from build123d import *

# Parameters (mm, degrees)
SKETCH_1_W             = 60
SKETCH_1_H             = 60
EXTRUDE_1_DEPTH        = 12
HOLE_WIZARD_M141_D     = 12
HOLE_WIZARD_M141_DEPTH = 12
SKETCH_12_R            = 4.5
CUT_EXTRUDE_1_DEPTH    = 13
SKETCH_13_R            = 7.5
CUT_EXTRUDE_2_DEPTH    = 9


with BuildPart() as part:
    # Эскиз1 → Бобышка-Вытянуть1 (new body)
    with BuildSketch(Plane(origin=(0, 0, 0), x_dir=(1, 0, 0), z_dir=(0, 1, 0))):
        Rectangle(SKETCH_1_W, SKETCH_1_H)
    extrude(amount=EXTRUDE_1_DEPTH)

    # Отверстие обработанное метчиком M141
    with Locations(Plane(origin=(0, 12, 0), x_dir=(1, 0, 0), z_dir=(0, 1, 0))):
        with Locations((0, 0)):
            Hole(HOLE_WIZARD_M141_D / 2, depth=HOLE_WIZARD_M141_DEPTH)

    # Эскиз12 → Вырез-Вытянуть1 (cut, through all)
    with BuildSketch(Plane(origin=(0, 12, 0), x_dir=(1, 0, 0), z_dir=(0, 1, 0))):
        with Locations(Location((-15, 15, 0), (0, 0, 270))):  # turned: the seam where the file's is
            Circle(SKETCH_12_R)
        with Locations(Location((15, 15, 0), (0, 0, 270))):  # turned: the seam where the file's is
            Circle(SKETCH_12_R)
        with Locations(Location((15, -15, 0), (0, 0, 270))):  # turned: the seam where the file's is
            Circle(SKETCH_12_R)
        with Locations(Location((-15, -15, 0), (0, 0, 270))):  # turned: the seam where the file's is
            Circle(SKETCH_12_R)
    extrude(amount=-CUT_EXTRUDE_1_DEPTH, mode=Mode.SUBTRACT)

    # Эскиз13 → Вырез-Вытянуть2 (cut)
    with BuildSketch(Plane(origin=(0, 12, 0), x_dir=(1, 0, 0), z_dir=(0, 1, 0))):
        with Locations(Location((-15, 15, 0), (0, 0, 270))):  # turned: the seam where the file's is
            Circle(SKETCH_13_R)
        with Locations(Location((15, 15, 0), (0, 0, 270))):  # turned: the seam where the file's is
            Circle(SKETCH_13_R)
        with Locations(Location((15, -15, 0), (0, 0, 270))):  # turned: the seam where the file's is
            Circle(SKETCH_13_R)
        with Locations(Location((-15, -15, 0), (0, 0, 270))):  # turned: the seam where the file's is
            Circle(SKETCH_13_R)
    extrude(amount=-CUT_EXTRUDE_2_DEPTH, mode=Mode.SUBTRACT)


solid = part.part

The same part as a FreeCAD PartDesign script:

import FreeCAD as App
import Part
import Sketcher
from FreeCAD import Vector


def add_polygon(sketch, points):
    """Adds a closed chain of lines whose ends are joined by coincident constraints."""
    first, n = sketch.GeometryCount, len(points)
    for a, b in zip(points, points[1:] + points[:1]):
        sketch.addGeometry(Part.LineSegment(App.Vector(*a, 0), App.Vector(*b, 0)), False)
    for i in range(n):
        sketch.addConstraint(Sketcher.Constraint("Coincident", first + i, 2, first + (i + 1) % n, 1))

doc = App.newDocument("Part")
params = doc.addObject("Spreadsheet::Sheet", "Params")
for row, (alias, value) in enumerate([
    ("sketch1_width", "60 mm"),
    ("pad1_length", "12 mm"),
    ("sketch2_diameter", "12 mm"),
    ("hole_diameter", "12 mm"),
    ("hole_depth", "12 mm"),
    ("sketch3_diameter", "9 mm"),
    ("sketch4_diameter", "15 mm"),
    ("pocket2_length", "9 mm"),
], start=1):
    params.set(f"A{row}", alias)
    params.set(f"B{row}", "=" + value)
    params.setAlias(f"B{row}", alias)

body = doc.addObject("PartDesign::Body", "Body")

# Sketch on XZ plane
sketch1 = doc.addObject("Sketcher::SketchObject", "Sketch")
body.addObject(sketch1)
sketch1.AttachmentSupport = (doc.XZ_Plane, [""])
sketch1.MapMode = "FlatFace"
add_polygon(sketch1, [(-30, -30), (-30, 30), (30, 30), (30, -30)])  # lines 0-3
sketch1.addConstraint(Sketcher.Constraint("Vertical", 0))
sketch1.addConstraint(Sketcher.Constraint("Horizontal", 1))
sketch1.addConstraint(Sketcher.Constraint("Vertical", 2))
sketch1.addConstraint(Sketcher.Constraint("Horizontal", 3))
sketch1.addConstraint(Sketcher.Constraint("Symmetric", 0, 2, 2, 2, -1, 1))
sketch1.addConstraint(Sketcher.Constraint("Equal", 3, 0))
sketch1.addConstraint(Sketcher.Constraint("DistanceX", 1, 1, 1, 2, 60.0))
sketch1.setExpression("Constraints[10]", "Params.sketch1_width")
pad1 = doc.addObject("PartDesign::Pad", "Pad")
body.addObject(pad1)
pad1.Profile = sketch1
pad1.setExpression("Length", "Params.pad1_length")
pad1.Reversed = True

# Sketch on XZ plane
sketch2 = doc.addObject("Sketcher::SketchObject", "Sketch001")
body.addObject(sketch2)
sketch2.AttachmentSupport = (doc.XZ_Plane, [""])
sketch2.MapMode = "FlatFace"
sketch2.AttachmentOffset = App.Placement(Vector(0, 0, -12), App.Rotation())
sketch2.addGeometry(Part.Circle(Vector(0, 0, 0), Vector(0, 0, 1), 6), False)
sketch2.addConstraint(Sketcher.Constraint("Coincident", 0, 3, -1, 1))
sketch2.addConstraint(Sketcher.Constraint("Diameter", 0, 12.0))
sketch2.setExpression("Constraints[1]", "Params.sketch2_diameter")
doc.recompute()
hole = doc.addObject("PartDesign::Hole", "Hole")
body.addObject(hole)
hole.Profile = sketch2
hole.ThreadType = "None"
hole.setExpression("Diameter", "Params.hole_diameter")
hole.DepthType = "Dimension"
hole.setExpression("Depth", "Params.hole_depth")
hole.DrillPoint = "Flat"
hole.Reversed = True

# Sketch on XZ plane
sketch3 = doc.addObject("Sketcher::SketchObject", "Sketch002")
body.addObject(sketch3)
sketch3.AttachmentSupport = (doc.XZ_Plane, [""])
sketch3.MapMode = "FlatFace"
sketch3.AttachmentOffset = App.Placement(Vector(0, 0, -12), App.Rotation())
sketch3.addGeometry(Part.Circle(Vector(-15, -15, 0), Vector(0, 0, 1), 4.5), False)
sketch3.addGeometry(Part.Circle(Vector(15, -15, 0), Vector(0, 0, 1), 4.5), False)
sketch3.addGeometry(Part.Circle(Vector(15, 15, 0), Vector(0, 0, 1), 4.5), False)
sketch3.addGeometry(Part.Circle(Vector(-15, 15, 0), Vector(0, 0, 1), 4.5), False)
sketch3.addConstraint(Sketcher.Constraint("Equal", 0, 1))
sketch3.addConstraint(Sketcher.Constraint("Equal", 1, 2))
sketch3.addConstraint(Sketcher.Constraint("Equal", 2, 3))
sketch3.addConstraint(Sketcher.Constraint("Symmetric", 0, 3, 2, 3, -1, 1))
sketch3.addConstraint(Sketcher.Constraint("Symmetric", 1, 3, 3, 3, -1, 1))
sketch3.addConstraint(Sketcher.Constraint("Symmetric", 0, 3, 1, 3, -2))
sketch3.addConstraint(Sketcher.Constraint("Diameter", 0, 9.0))
sketch3.addConstraint(Sketcher.Constraint("DistanceX", 0, 3, -1, 1, 15.0))
sketch3.addConstraint(Sketcher.Constraint("DistanceY", 0, 3, -1, 1, 15.0))
sketch3.setExpression("Constraints[6]", "Params.sketch3_diameter")
pocket1 = doc.addObject("PartDesign::Pocket", "Pocket")
body.addObject(pocket1)
pocket1.Profile = sketch3
pocket1.Type = "ThroughAll"
pocket1.Reversed = True

# Sketch on XZ plane
sketch4 = doc.addObject("Sketcher::SketchObject", "Sketch003")
body.addObject(sketch4)
sketch4.AttachmentSupport = (doc.XZ_Plane, [""])
sketch4.MapMode = "FlatFace"
sketch4.AttachmentOffset = App.Placement(Vector(0, 0, -12), App.Rotation())
sketch4.addGeometry(Part.Circle(Vector(-15, -15, 0), Vector(0, 0, 1), 7.5), False)
sketch4.addGeometry(Part.Circle(Vector(15, -15, 0), Vector(0, 0, 1), 7.5), False)
sketch4.addGeometry(Part.Circle(Vector(15, 15, 0), Vector(0, 0, 1), 7.5), False)
sketch4.addGeometry(Part.Circle(Vector(-15, 15, 0), Vector(0, 0, 1), 7.5), False)
sketch4.addConstraint(Sketcher.Constraint("Equal", 0, 1))
sketch4.addConstraint(Sketcher.Constraint("Equal", 1, 2))
sketch4.addConstraint(Sketcher.Constraint("Equal", 2, 3))
sketch4.addConstraint(Sketcher.Constraint("Symmetric", 0, 3, 2, 3, -1, 1))
sketch4.addConstraint(Sketcher.Constraint("Symmetric", 1, 3, 3, 3, -1, 1))
sketch4.addConstraint(Sketcher.Constraint("Symmetric", 0, 3, 1, 3, -2))
sketch4.addConstraint(Sketcher.Constraint("Diameter", 0, 15.0))
sketch4.addConstraint(Sketcher.Constraint("DistanceX", 0, 3, -1, 1, 15.0))
sketch4.addConstraint(Sketcher.Constraint("DistanceY", 0, 3, -1, 1, 15.0))
sketch4.setExpression("Constraints[6]", "Params.sketch4_diameter")
pocket2 = doc.addObject("PartDesign::Pocket", "Pocket001")
body.addObject(pocket2)
pocket2.Profile = sketch4
pocket2.setExpression("Length", "Params.pocket2_length")
pocket2.Reversed = True

doc.recompute()
